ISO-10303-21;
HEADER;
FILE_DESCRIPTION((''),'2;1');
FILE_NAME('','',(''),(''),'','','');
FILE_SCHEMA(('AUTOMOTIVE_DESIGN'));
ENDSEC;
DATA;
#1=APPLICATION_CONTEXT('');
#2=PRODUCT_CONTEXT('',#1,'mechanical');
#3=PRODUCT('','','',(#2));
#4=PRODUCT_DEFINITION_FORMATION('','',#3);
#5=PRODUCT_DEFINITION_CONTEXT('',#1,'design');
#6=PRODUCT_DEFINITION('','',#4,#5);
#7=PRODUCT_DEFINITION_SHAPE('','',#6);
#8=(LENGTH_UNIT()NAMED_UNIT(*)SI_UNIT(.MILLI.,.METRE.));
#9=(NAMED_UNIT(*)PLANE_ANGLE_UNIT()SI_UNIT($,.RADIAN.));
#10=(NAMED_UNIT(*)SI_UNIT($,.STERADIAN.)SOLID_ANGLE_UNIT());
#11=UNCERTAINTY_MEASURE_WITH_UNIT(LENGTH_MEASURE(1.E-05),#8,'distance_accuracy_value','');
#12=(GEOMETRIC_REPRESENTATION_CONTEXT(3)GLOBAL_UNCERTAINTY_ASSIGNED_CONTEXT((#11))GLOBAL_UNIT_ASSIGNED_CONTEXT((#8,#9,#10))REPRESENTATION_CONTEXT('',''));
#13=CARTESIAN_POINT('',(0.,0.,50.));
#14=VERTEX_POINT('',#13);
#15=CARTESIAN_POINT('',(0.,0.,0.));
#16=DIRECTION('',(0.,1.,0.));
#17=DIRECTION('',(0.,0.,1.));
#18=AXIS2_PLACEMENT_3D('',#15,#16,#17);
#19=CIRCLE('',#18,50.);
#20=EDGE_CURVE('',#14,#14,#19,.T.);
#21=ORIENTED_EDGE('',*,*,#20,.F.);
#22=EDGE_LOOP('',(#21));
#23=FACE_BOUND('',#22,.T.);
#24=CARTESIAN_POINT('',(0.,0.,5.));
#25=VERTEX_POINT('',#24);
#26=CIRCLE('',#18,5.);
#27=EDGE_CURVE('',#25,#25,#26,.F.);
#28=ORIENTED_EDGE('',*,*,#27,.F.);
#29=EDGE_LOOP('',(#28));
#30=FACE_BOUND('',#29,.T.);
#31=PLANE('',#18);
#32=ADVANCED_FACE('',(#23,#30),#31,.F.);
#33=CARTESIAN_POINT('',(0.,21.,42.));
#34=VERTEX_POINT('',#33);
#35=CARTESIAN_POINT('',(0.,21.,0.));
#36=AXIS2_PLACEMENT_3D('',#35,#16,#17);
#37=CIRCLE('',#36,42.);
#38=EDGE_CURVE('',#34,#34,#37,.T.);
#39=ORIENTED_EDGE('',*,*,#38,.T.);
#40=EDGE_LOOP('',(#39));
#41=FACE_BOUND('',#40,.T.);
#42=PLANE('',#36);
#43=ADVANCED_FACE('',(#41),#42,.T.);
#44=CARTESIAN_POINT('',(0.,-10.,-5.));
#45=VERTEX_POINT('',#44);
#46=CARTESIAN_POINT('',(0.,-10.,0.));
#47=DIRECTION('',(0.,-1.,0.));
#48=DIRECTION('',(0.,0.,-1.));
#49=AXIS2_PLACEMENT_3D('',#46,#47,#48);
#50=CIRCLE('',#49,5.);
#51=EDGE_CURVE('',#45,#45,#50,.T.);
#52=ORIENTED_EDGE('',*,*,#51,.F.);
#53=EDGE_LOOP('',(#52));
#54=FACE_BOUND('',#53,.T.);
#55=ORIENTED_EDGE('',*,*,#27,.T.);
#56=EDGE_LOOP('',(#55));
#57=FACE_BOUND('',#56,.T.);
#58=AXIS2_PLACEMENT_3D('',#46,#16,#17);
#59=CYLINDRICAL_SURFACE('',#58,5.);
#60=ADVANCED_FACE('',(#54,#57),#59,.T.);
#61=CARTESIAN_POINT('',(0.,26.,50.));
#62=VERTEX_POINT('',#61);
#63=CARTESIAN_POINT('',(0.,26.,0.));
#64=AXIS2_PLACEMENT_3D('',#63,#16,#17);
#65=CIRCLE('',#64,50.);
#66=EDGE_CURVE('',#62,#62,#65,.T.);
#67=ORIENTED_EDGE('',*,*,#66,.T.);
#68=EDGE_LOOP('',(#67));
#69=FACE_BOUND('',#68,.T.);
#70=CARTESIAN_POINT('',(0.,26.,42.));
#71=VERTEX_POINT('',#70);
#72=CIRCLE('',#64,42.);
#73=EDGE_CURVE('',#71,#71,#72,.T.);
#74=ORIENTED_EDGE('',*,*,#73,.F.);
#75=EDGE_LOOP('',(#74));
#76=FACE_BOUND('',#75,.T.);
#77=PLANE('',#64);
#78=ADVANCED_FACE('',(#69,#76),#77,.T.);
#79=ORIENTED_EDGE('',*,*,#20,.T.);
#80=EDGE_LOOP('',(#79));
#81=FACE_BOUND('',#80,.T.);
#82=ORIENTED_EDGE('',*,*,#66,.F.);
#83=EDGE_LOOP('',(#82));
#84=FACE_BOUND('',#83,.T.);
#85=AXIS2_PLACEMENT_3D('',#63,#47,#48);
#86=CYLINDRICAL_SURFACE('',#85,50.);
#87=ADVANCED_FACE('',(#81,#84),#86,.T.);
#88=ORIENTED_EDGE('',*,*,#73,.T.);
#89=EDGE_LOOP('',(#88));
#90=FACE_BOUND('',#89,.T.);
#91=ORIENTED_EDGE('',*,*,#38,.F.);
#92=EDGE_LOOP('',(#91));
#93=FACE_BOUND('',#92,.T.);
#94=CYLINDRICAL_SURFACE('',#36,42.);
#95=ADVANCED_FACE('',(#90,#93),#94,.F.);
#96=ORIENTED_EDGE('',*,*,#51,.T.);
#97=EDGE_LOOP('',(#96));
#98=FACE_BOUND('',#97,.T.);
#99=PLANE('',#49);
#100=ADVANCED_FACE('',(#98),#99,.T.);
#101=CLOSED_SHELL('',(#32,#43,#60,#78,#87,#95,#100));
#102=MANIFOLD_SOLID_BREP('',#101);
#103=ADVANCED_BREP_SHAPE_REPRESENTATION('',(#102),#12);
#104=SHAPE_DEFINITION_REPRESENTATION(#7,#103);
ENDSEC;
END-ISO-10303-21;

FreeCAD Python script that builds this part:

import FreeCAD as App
import Part
import Sketcher

V = App.Vector
Q = App.Units.Quantity

doc = App.newDocument("Part")
params = doc.addObject("Spreadsheet::Sheet", "Params")
for row, (alias, value) in enumerate([
    ("sketch1_diameter", "100 mm"),
    ("pad1_length", "26 mm"),
    ("sketch2_diameter", "84 mm"),
    ("pocket1_length", "5 mm"),
    ("sketch3_diameter", "10 mm"),
    ("pad2_length", "10 mm"),
], start=1):
    params.set(f"A{row}", alias)
    params.set(f"B{row}", "=" + value)
    params.setAlias(f"B{row}", alias)

body = doc.addObject("PartDesign::Body", "Body")

sketch1 = body.newObject("Sketcher::SketchObject", "Sketch")
sketch1.AttachmentSupport = (doc.getObject("XZ_Plane"), [""])
sketch1.MapMode = "FlatFace"
sketch1.addGeometry(Part.Circle(V(0, 0, 0), V(0, 0, 1), 50), False)
sketch1.addConstraint(Sketcher.Constraint("Coincident", 0, 3, -1, 1))
sketch1.addConstraint(Sketcher.Constraint("Diameter", 0, Q("100 mm")))
sketch1.setExpression("Constraints[1]", "Params.sketch1_diameter")
pad1 = body.newObject("PartDesign::Pad", "Pad")
pad1.Profile = sketch1
pad1.setExpression("Length", "Params.pad1_length")
pad1.Reversed = True

sketch2 = body.newObject("Sketcher::SketchObject", "Sketch001")
sketch2.AttachmentSupport = (doc.getObject("XZ_Plane"), [""])
sketch2.MapMode = "FlatFace"
sketch2.AttachmentOffset = App.Placement(V(0, 0, -26), App.Rotation())
sketch2.addGeometry(Part.Circle(V(0, 0, 0), V(0, 0, 1), 42), False)
sketch2.addConstraint(Sketcher.Constraint("Coincident", 0, 3, -1, 1))
sketch2.addConstraint(Sketcher.Constraint("Diameter", 0, Q("84 mm")))
sketch2.setExpression("Constraints[1]", "Params.sketch2_diameter")
pocket1 = body.newObject("PartDesign::Pocket", "Pocket")
pocket1.Profile = sketch2
pocket1.setExpression("Length", "Params.pocket1_length")
pocket1.Reversed = True

sketch3 = body.newObject("Sketcher::SketchObject", "Sketch002")
sketch3.AttachmentSupport = (doc.getObject("XZ_Plane"), [""])
sketch3.MapMode = "FlatFace"
sketch3.addGeometry(Part.Circle(V(0, 0, 0), V(0, 0, 1), 5), False)
sketch3.addConstraint(Sketcher.Constraint("Coincident", 0, 3, -1, 1))
sketch3.addConstraint(Sketcher.Constraint("Diameter", 0, Q("10 mm")))
sketch3.setExpression("Constraints[1]", "Params.sketch3_diameter")
pad2 = body.newObject("PartDesign::Pad", "Pad001")
pad2.Profile = sketch3
pad2.setExpression("Length", "Params.pad2_length")

doc.recompute()
